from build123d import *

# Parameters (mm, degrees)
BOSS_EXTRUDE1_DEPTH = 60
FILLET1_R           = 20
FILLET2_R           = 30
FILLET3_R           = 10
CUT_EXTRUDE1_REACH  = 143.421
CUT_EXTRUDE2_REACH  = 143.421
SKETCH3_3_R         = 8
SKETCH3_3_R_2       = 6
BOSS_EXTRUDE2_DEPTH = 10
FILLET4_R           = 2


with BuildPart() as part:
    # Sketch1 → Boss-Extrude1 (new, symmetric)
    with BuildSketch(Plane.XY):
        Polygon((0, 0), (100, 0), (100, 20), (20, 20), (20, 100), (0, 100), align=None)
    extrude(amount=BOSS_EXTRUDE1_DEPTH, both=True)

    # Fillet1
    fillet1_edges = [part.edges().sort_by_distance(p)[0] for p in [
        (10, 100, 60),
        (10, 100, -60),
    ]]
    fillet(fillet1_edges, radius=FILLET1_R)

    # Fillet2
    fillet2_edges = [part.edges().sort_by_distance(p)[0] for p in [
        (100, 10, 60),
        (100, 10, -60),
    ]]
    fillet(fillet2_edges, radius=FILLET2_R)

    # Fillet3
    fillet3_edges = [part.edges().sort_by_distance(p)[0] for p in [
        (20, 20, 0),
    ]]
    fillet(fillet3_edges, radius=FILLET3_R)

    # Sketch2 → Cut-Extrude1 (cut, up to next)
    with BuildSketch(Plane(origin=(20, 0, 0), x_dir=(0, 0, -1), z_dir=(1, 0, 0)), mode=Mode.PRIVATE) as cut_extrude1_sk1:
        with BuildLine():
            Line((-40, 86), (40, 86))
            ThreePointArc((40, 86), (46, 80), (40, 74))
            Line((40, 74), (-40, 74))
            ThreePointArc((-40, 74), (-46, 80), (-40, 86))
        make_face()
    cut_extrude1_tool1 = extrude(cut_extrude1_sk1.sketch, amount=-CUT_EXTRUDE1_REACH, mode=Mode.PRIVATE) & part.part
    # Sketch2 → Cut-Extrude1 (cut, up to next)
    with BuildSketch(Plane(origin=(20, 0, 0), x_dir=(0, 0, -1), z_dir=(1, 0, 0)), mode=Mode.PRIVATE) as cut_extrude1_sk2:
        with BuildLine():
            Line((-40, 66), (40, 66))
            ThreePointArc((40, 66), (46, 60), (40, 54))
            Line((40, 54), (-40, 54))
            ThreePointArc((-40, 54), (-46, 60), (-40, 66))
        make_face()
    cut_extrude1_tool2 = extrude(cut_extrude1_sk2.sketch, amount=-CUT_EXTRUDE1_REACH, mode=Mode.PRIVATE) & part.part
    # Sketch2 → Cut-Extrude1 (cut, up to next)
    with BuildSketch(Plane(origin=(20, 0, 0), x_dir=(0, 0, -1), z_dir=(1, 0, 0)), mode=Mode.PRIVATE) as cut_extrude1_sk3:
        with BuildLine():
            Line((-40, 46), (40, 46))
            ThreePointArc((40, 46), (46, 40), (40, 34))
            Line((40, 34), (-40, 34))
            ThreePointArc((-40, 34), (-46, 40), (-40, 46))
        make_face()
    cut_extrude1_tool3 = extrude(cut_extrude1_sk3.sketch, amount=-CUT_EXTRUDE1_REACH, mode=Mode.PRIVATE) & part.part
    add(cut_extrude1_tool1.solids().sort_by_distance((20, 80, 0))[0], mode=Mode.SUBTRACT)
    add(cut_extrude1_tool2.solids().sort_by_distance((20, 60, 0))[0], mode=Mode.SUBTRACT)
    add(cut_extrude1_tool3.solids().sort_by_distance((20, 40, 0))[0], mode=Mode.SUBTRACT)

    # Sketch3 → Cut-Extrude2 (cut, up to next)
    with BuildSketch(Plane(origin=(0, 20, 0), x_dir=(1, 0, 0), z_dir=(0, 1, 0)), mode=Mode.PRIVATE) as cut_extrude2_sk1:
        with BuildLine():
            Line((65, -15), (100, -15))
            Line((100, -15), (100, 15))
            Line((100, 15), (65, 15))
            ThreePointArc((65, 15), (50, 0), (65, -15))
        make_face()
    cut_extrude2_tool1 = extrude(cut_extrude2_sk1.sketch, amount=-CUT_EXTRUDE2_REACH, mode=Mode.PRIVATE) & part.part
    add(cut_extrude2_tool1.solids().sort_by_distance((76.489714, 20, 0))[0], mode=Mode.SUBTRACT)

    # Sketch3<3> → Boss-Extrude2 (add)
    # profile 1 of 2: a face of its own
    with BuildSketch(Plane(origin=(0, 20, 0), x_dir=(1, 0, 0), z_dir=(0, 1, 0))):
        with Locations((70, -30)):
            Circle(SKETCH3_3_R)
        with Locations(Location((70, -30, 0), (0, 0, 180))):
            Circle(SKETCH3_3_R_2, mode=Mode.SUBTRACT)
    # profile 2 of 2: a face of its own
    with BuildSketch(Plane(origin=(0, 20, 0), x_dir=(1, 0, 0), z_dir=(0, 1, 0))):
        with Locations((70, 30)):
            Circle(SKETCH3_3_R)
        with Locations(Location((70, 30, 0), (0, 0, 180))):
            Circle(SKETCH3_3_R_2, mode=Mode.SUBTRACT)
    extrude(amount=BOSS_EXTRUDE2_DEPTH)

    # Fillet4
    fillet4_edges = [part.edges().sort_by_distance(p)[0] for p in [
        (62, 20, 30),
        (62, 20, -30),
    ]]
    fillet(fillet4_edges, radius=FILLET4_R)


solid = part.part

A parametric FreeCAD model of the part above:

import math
import FreeCAD as App
import Part
import Sketcher
Q = App.Units.Quantity


def edges_at(feature, points):
    """Names of the edges that pass closest to the given points."""
    edges = feature.Shape.Edges
    near = lambda p: min(range(len(edges)), key=lambda i: edges[i].distToShape(Part.Vertex(*p))[0])
    return sorted({f"Edge{near(p) + 1}" for p in points})


def add_polygon(sketch, points):
    """Adds a closed chain of lines whose ends are joined by coincident constraints."""
    first, n = sketch.GeometryCount, len(points)
    for a, b in zip(points, points[1:] + points[:1]):
        sketch.addGeometry(Part.LineSegment(App.Vector(*a, 0), App.Vector(*b, 0)), False)
    for i in range(n):
        sketch.addConstraint(Sketcher.Constraint("Coincident", first + i, 2, first + (i + 1) % n, 1))

doc = App.newDocument("Part")
params = doc.addObject("Spreadsheet::Sheet", "Params")
for row, (alias, value) in enumerate([
    ("sketch1_width", "100 mm"),
    ("sketch1_width2", "80 mm"),
    ("pad1_length", "120 mm"),
    ("fillet_radius", "20 mm"),
    ("fillet2_radius", "30 mm"),
    ("fillet3_radius", "10 mm"),
    ("sketch2_radius", "6 mm"),
    ("sketch2_height", "80 mm"),
    ("sketch3_radius", "6 mm"),
    ("sketch3_height", "80 mm"),
    ("sketch4_radius", "6 mm"),
    ("sketch4_height", "80 mm"),
    ("sketch5_radius", "15 mm"),
    ("sketch5_width", "35 mm"),
    ("sketch6_diameter", "16 mm"),
    ("sketch6_diameter2", "12 mm"),
    ("pad2_length", "10 mm"),
    ("fillet4_radius", "2 mm"),
], start=1):
    params.set(f"A{row}", alias)
    params.set(f"B{row}", "=" + value)
    params.setAlias(f"B{row}", alias)

body = doc.addObject("PartDesign::Body", "Body")

sketch1 = body.newObject("Sketcher::SketchObject", "Sketch")
sketch1.AttachmentSupport = (doc.getObject("XY_Plane"), [""])
sketch1.MapMode = "FlatFace"
add_polygon(sketch1, [(0, 0), (100, 0), (100, 20), (20, 20), (20, 100), (0, 100)])
sketch1.addConstraint([
    Sketcher.Constraint("Horizontal", 0),
    Sketcher.Constraint("Vertical", 1),
    Sketcher.Constraint("Horizontal", 2),
    Sketcher.Constraint("Vertical", 3),
    Sketcher.Constraint("Horizontal", 4),
    Sketcher.Constraint("Vertical", 5),
    Sketcher.Constraint("Coincident", 5, 2, -1, 1),
    Sketcher.Constraint("Equal", 4, 1),
    Sketcher.Constraint("Equal", 2, 3),
    Sketcher.Constraint("DistanceX", 0, 1, 0, 2, Q("100 mm")),
    Sketcher.Constraint("DistanceX", 2, 2, 2, 1, Q("80 mm")),
])
sketch1.setExpression("Constraints[15]", "Params.sketch1_width")
sketch1.setExpression("Constraints[16]", "Params.sketch1_width2")
pad1 = body.newObject("PartDesign::Pad", "Pad")
pad1.Profile = sketch1
pad1.setExpression("Length", "Params.pad1_length")
pad1.Midplane = True
doc.recompute()

fillet = body.newObject("PartDesign::Fillet", "Fillet")
fillet.Base = (pad1, edges_at(pad1, [(10, 100, 60), (10, 100, -60)]))
fillet.setExpression("Radius", "Params.fillet_radius")
doc.recompute()

fillet2 = body.newObject("PartDesign::Fillet", "Fillet001")
fillet2.Base = (fillet, edges_at(fillet, [(100, 10, 60), (100, 10, -60)]))
fillet2.setExpression("Radius", "Params.fillet2_radius")
doc.recompute()

fillet3 = body.newObject("PartDesign::Fillet", "Fillet002")
fillet3.Base = (fillet2, edges_at(fillet2, [(20, 20, 0)]))
fillet3.setExpression("Radius", "Params.fillet3_radius")

sketch2 = body.newObject("Sketcher::SketchObject", "Sketch001")
sketch2.AttachmentSupport = (doc.getObject("YZ_Plane"), [""])
sketch2.MapMode = "FlatFace"
sketch2.AttachmentOffset = App.Placement(App.Vector(0, 0, 20), App.Rotation())
sketch2.addGeometry([
    Part.LineSegment(App.Vector(86, -40, 0), App.Vector(86, 40, 0)),
    Part.ArcOfCircle(Part.Circle(App.Vector(80, 40, 0), App.Vector(0, 0, 1), 6), math.radians(0), math.radians(180)),
    Part.LineSegment(App.Vector(74, 40, 0), App.Vector(74, -40, 0)),
    Part.ArcOfCircle(Part.Circle(App.Vector(80, -40, 0), App.Vector(0, 0, 1), 6), math.radians(180), math.radians(360)),
], False)
sketch2.addConstraint([
    Sketcher.Constraint("Tangent", 0, 2, 1, 1),
    Sketcher.Constraint("Tangent", 1, 2, 2, 1),
    Sketcher.Constraint("Tangent", 2, 2, 3, 1),
    Sketcher.Constraint("Tangent", 3, 2, 0, 1),
    Sketcher.Constraint("Vertical", 0),
    Sketcher.Constraint("Vertical", 2),
    Sketcher.Constraint("Radius", 1, Q("6 mm")),
    Sketcher.Constraint("DistanceY", 0, 1, 0, 2, Q("80 mm")),
    Sketcher.Constraint("DistanceX", -1, 1, 1, 3, Q("80 mm")),
    Sketcher.Constraint("DistanceY", -1, 1, 1, 3, Q("40 mm")),
])
sketch2.setExpression("Constraints[6]", "Params.sketch2_radius")
sketch2.setExpression("Constraints[7]", "Params.sketch2_height")
pocket1 = body.newObject("PartDesign::Pocket", "Pocket")
pocket1.Profile = sketch2
pocket1.Type = "UpToFirst"

sketch3 = body.newObject("Sketcher::SketchObject", "Sketch002")
sketch3.AttachmentSupport = (doc.getObject("YZ_Plane"), [""])
sketch3.MapMode = "FlatFace"
sketch3.AttachmentOffset = App.Placement(App.Vector(0, 0, 20), App.Rotation())
sketch3.addGeometry([
    Part.LineSegment(App.Vector(66, -40, 0), App.Vector(66, 40, 0)),
    Part.ArcOfCircle(Part.Circle(App.Vector(60, 40, 0), App.Vector(0, 0, 1), 6), math.radians(0), math.radians(180)),
    Part.LineSegment(App.Vector(54, 40, 0), App.Vector(54, -40, 0)),
    Part.ArcOfCircle(Part.Circle(App.Vector(60, -40, 0), App.Vector(0, 0, 1), 6), math.radians(180), math.radians(360)),
], False)
sketch3.addConstraint([
    Sketcher.Constraint("Tangent", 0, 2, 1, 1),
    Sketcher.Constraint("Tangent", 1, 2, 2, 1),
    Sketcher.Constraint("Tangent", 2, 2, 3, 1),
    Sketcher.Constraint("Tangent", 3, 2, 0, 1),
    Sketcher.Constraint("Vertical", 0),
    Sketcher.Constraint("Vertical", 2),
    Sketcher.Constraint("Radius", 1, Q("6 mm")),
    Sketcher.Constraint("DistanceY", 0, 1, 0, 2, Q("80 mm")),
    Sketcher.Constraint("DistanceX", -1, 1, 1, 3, Q("60 mm")),
    Sketcher.Constraint("DistanceY", -1, 1, 1, 3, Q("40 mm")),
])
sketch3.setExpression("Constraints[6]", "Params.sketch3_radius")
sketch3.setExpression("Constraints[7]", "Params.sketch3_height")
pocket2 = body.newObject("PartDesign::Pocket", "Pocket001")
pocket2.Profile = sketch3
pocket2.Type = "UpToFirst"

sketch4 = body.newObject("Sketcher::SketchObject", "Sketch003")
sketch4.AttachmentSupport = (doc.getObject("YZ_Plane"), [""])
sketch4.MapMode = "FlatFace"
sketch4.AttachmentOffset = App.Placement(App.Vector(0, 0, 20), App.Rotation())
sketch4.addGeometry([
    Part.LineSegment(App.Vector(46, -40, 0), App.Vector(46, 40, 0)),
    Part.ArcOfCircle(Part.Circle(App.Vector(40, 40, 0), App.Vector(0, 0, 1), 6), math.radians(0), math.radians(180)),
    Part.LineSegment(App.Vector(34, 40, 0), App.Vector(34, -40, 0)),
    Part.ArcOfCircle(Part.Circle(App.Vector(40, -40, 0), App.Vector(0, 0, 1), 6), math.radians(180), math.radians(360)),
], False)
sketch4.addConstraint([
    Sketcher.Constraint("Tangent", 0, 2, 1, 1),
    Sketcher.Constraint("Tangent", 1, 2, 2, 1),
    Sketcher.Constraint("Tangent", 2, 2, 3, 1),
    Sketcher.Constraint("Tangent", 3, 2, 0, 1),
    Sketcher.Constraint("Vertical", 0),
    Sketcher.Constraint("Vertical", 2),
    Sketcher.Constraint("Radius", 1, Q("6 mm")),
    Sketcher.Constraint("DistanceY", 0, 1, 0, 2, Q("80 mm")),
    Sketcher.Constraint("DistanceX", -1, 1, 1, 3, Q("40 mm")),
    Sketcher.Constraint("DistanceY", -1, 1, 1, 3, Q("40 mm")),
])
sketch4.setExpression("Constraints[6]", "Params.sketch4_radius")
sketch4.setExpression("Constraints[7]", "Params.sketch4_height")
pocket3 = body.newObject("PartDesign::Pocket", "Pocket002")
pocket3.Profile = sketch4
pocket3.Type = "UpToFirst"

sketch5 = body.newObject("Sketcher::SketchObject", "Sketch004")
sketch5.AttachmentSupport = (doc.getObject("XZ_Plane"), [""])
sketch5.MapMode = "FlatFace"
sketch5.AttachmentOffset = App.Placement(App.Vector(0, 0, -20), App.Rotation())
sketch5.addGeometry([
    Part.LineSegment(App.Vector(65, 15, 0), App.Vector(100, 15, 0)),
    Part.LineSegment(App.Vector(100, 15, 0), App.Vector(100, -15, 0)),
    Part.LineSegment(App.Vector(100, -15, 0), App.Vector(65, -15, 0)),
    Part.ArcOfCircle(Part.Circle(App.Vector(65, 0, 0), App.Vector(0, 0, 1), 15), math.radians(90), math.radians(270)),
], False)
sketch5.addConstraint([
    Sketcher.Constraint("Coincident", 0, 2, 1, 1),
    Sketcher.Constraint("Coincident", 1, 2, 2, 1),
    Sketcher.Constraint("Tangent", 2, 2, 3, 2),
    Sketcher.Constraint("Tangent", 3, 1, 0, 1),
    Sketcher.Constraint("Horizontal", 0),
    Sketcher.Constraint("Vertical", 1),
    Sketcher.Constraint("Horizontal", 2),
    Sketcher.Constraint("PointOnObject", 3, 3, -1),
    Sketcher.Constraint("Radius", 3, Q("15 mm")),
    Sketcher.Constraint("DistanceX", 0, 1, 0, 2, Q("35 mm")),
    Sketcher.Constraint("DistanceX", -1, 1, 3, 3, Q("65 mm")),
])
sketch5.setExpression("Constraints[8]", "Params.sketch5_radius")
sketch5.setExpression("Constraints[9]", "Params.sketch5_width")
pocket4 = body.newObject("PartDesign::Pocket", "Pocket003")
pocket4.Profile = sketch5
pocket4.Type = "UpToFirst"
pocket4.Reversed = True

sketch6 = body.newObject("Sketcher::SketchObject", "Sketch005")
sketch6.AttachmentSupport = (doc.getObject("XZ_Plane"), [""])
sketch6.MapMode = "FlatFace"
sketch6.AttachmentOffset = App.Placement(App.Vector(0, 0, -20), App.Rotation())
sketch6.addGeometry([
    Part.Circle(App.Vector(70, 30, 0), App.Vector(0, 0, 1), 8),
    Part.Circle(App.Vector(70, 30, 0), App.Vector(0, 0, 1), 6),
    Part.Circle(App.Vector(70, -30, 0), App.Vector(0, 0, 1), 8),
    Part.Circle(App.Vector(70, -30, 0), App.Vector(0, 0, 1), 6),
], False)
sketch6.addConstraint([
    Sketcher.Constraint("Coincident", 1, 3, 0, 3),
    Sketcher.Constraint("Coincident", 3, 3, 2, 3),
    Sketcher.Constraint("Equal", 0, 2),
    Sketcher.Constraint("Equal", 1, 3),
    Sketcher.Constraint("Symmetric", 0, 3, 2, 3, -1),
    Sketcher.Constraint("Diameter", 0, Q("16 mm")),
    Sketcher.Constraint("Diameter", 1, Q("12 mm")),
    Sketcher.Constraint("DistanceX", -1, 1, 0, 3, Q("70 mm")),
    Sketcher.Constraint("DistanceY", -1, 1, 0, 3, Q("30 mm")),
])
sketch6.setExpression("Constraints[5]", "Params.sketch6_diameter")
sketch6.setExpression("Constraints[6]", "Params.sketch6_diameter2")
pad2 = body.newObject("PartDesign::Pad", "Pad001")
pad2.Profile = sketch6
pad2.setExpression("Length", "Params.pad2_length")
pad2.Reversed = True
doc.recompute()

fillet4 = body.newObject("PartDesign::Fillet", "Fillet003")
fillet4.Base = (pad2, edges_at(pad2, [(62, 20, 30), (62, 20, -30)]))
fillet4.setExpression("Radius", "Params.fillet4_radius")

doc.recompute()
